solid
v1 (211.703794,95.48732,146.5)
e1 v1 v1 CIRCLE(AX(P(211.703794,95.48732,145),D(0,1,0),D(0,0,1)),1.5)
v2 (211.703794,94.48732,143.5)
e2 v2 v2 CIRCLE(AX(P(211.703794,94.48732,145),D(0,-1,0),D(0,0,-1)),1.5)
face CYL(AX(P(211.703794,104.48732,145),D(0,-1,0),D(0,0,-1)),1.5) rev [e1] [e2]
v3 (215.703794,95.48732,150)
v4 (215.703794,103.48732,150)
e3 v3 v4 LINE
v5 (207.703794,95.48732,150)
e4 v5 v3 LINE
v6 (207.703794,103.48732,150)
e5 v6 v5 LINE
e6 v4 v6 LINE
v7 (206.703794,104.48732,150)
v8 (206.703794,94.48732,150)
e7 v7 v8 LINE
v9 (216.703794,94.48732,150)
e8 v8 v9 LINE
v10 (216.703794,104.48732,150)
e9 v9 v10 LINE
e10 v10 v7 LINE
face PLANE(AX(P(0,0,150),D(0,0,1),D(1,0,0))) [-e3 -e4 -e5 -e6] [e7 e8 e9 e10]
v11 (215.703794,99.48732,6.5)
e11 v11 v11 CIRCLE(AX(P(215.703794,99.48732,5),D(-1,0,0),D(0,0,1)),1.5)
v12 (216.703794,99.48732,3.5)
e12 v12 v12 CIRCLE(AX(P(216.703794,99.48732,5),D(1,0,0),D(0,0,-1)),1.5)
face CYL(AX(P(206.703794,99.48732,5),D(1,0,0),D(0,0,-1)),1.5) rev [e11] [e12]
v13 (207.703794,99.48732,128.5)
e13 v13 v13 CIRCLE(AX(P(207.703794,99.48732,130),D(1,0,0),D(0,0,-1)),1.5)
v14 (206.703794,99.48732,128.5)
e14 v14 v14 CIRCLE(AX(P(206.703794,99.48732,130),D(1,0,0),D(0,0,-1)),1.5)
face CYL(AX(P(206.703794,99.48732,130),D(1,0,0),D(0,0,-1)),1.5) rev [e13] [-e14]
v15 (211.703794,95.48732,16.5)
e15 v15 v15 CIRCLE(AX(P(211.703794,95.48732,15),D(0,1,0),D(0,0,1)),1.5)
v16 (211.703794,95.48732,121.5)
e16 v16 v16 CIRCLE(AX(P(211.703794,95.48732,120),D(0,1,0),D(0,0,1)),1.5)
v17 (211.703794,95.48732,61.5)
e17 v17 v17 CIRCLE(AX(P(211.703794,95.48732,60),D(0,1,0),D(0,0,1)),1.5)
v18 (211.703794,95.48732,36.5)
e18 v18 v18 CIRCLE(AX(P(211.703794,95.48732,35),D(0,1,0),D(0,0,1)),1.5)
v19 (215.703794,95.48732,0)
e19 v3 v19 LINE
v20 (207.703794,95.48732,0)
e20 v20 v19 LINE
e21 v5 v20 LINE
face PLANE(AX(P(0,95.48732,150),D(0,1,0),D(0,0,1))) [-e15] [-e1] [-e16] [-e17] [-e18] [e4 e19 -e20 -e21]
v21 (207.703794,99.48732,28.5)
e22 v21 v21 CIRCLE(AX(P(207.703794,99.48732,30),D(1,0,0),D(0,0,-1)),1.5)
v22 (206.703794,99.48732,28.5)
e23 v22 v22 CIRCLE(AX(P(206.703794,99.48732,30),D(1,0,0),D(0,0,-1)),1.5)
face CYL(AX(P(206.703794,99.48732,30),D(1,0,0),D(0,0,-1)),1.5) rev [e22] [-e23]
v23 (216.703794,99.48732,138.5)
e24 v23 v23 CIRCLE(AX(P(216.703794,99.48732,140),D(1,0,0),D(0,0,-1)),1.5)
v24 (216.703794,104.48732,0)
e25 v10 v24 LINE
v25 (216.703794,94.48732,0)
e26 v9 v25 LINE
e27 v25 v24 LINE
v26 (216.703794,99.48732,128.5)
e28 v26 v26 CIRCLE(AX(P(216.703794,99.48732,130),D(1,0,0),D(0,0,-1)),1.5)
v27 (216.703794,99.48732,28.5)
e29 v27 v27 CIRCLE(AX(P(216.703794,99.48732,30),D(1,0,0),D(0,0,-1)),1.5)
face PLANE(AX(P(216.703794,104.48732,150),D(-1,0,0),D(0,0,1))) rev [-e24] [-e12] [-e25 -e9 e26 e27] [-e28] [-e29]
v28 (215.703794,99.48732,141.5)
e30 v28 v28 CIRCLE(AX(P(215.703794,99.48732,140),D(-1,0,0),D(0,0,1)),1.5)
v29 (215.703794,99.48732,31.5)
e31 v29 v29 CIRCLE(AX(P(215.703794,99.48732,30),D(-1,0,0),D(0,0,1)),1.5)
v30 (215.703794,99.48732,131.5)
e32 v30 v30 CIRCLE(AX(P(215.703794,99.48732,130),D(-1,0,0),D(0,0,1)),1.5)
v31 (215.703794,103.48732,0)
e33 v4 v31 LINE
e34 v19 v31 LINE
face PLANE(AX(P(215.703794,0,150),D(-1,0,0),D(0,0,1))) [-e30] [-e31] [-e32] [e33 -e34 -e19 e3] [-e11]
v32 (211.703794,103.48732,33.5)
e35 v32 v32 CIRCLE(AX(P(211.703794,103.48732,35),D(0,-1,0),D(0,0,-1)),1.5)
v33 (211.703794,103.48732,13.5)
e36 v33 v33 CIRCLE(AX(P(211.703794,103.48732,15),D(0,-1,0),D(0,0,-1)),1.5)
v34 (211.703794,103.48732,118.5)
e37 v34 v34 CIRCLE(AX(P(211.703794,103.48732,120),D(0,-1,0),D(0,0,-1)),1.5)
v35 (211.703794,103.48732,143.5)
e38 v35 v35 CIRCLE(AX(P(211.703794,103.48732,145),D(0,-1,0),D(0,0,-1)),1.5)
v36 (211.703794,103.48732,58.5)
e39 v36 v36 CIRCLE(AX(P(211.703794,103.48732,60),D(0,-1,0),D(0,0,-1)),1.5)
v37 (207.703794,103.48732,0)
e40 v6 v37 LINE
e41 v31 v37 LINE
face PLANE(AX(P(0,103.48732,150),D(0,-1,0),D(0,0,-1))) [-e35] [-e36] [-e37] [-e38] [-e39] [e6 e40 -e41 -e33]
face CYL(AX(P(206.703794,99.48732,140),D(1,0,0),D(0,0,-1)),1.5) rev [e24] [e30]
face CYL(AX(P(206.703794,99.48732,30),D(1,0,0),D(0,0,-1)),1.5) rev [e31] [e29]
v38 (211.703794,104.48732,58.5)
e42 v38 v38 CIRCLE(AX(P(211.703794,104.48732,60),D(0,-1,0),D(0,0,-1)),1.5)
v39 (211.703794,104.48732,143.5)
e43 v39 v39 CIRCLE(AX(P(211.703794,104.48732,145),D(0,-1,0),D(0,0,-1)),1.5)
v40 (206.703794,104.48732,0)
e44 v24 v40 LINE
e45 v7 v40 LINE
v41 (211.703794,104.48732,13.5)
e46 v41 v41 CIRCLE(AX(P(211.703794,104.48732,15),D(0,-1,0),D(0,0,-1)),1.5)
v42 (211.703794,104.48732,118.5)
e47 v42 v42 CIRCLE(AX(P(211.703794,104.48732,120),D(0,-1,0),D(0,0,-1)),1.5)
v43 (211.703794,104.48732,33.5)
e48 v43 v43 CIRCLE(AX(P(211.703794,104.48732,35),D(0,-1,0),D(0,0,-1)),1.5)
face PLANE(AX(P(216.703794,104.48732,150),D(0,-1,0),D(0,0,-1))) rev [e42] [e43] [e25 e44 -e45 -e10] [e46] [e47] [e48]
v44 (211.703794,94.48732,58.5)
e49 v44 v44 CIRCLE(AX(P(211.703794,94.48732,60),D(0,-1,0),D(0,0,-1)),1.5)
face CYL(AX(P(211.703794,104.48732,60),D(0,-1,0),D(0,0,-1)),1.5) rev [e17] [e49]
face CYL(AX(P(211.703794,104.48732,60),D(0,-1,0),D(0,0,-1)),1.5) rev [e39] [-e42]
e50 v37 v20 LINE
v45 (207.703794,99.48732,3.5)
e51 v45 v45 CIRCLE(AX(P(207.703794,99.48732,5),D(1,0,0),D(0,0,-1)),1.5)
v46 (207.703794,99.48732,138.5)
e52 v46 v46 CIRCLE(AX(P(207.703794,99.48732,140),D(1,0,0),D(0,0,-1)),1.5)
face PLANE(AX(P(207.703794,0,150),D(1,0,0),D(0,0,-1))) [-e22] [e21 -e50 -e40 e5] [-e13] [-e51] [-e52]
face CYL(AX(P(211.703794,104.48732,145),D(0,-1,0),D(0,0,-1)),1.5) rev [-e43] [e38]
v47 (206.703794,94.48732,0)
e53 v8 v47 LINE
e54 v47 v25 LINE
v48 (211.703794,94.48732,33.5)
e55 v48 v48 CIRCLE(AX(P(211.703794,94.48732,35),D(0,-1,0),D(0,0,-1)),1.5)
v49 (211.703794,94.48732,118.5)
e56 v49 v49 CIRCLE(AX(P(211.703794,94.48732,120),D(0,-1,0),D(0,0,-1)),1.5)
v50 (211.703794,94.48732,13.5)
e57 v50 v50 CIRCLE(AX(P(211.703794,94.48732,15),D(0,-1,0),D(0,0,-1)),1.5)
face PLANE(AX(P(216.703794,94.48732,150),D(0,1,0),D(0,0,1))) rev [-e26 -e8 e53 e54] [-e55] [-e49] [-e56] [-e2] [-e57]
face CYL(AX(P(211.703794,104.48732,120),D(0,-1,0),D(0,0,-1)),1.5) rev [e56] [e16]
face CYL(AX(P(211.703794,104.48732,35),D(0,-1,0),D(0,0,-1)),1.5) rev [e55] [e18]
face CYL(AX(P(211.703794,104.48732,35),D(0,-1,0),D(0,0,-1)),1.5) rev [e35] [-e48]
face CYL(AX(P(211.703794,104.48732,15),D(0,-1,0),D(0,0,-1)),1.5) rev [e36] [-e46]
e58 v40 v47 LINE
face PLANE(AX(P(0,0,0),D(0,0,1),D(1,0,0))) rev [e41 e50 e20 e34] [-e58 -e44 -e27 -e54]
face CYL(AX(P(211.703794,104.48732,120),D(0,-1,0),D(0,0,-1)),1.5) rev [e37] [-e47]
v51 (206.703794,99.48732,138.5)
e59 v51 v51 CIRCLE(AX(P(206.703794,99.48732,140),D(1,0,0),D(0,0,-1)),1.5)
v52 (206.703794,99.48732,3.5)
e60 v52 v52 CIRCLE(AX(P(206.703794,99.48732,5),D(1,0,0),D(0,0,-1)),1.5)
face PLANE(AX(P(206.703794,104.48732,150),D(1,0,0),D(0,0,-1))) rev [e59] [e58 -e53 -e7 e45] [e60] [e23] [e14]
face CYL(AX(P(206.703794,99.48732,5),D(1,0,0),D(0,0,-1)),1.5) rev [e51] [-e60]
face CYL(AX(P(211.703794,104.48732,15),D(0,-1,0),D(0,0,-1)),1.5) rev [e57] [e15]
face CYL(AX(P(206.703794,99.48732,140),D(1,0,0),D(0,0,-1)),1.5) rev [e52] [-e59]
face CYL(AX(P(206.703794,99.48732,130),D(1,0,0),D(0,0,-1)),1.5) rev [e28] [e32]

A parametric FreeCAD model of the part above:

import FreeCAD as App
import Part
import Sketcher
Q = App.Units.Quantity


def add_polygon(sketch, points):
    """Adds a closed chain of lines whose ends are joined by coincident constraints."""
    first, n = sketch.GeometryCount, len(points)
    for a, b in zip(points, points[1:] + points[:1]):
        sketch.addGeometry(Part.LineSegment(App.Vector(*a, 0), App.Vector(*b, 0)), False)
    for i in range(n):
        sketch.addConstraint(Sketcher.Constraint("Coincident", first + i, 2, first + (i + 1) % n, 1))

doc = App.newDocument("Part")
params = doc.addObject("Spreadsheet::Sheet", "Params")
for row, (alias, value) in enumerate([
    ("sketch1_width", "10 mm"),
    ("sketch1_width2", "8 mm"),
    ("pad1_length", "150 mm"),
    ("sketch2_diameter", "3 mm"),
    ("sketch3_diameter", "3 mm"),
], start=1):
    params.set(f"A{row}", alias)
    params.set(f"B{row}", "=" + value)
    params.setAlias(f"B{row}", alias)

body = doc.addObject("PartDesign::Body", "Body")

# Sketch on XY plane
sketch1 = body.newObject("Sketcher::SketchObject", "Sketch")
sketch1.AttachmentSupport = (doc.getObject("XY_Plane"), [""])
sketch1.MapMode = "FlatFace"
add_polygon(sketch1, [(207, 104), (207, 94), (217, 94), (217, 104)])  # lines 0-3
add_polygon(sketch1, [(216, 95), (208, 95), (208, 103), (216, 103)])  # lines 4-7
sketch1.addConstraint([
    Sketcher.Constraint("Vertical", 0),
    Sketcher.Constraint("Horizontal", 1),
    Sketcher.Constraint("Vertical", 2),
    Sketcher.Constraint("Horizontal", 3),
    Sketcher.Constraint("Horizontal", 4),
    Sketcher.Constraint("Vertical", 5),
    Sketcher.Constraint("Horizontal", 6),
    Sketcher.Constraint("Vertical", 7),
    Sketcher.Constraint("Equal", 3, 0),
    Sketcher.Constraint("Equal", 6, 5),
    Sketcher.Constraint("DistanceX", 1, 1, 1, 2, Q("10 mm")),
    Sketcher.Constraint("DistanceX", 4, 2, 4, 1, Q("8 mm")),
    Sketcher.Constraint("DistanceX", 0, 2, 4, 2, Q("1 mm")),
    Sketcher.Constraint("DistanceY", 0, 2, 4, 2, Q("1 mm")),
    Sketcher.Constraint("DistanceY", -1, 1, 0, 2, Q("94.48732 mm")),
    Sketcher.Constraint("DistanceX", -1, 1, 0, 2, Q("206.703794 mm")),
])
sketch1.setExpression("Constraints[18]", "Params.sketch1_width")
sketch1.setExpression("Constraints[19]", "Params.sketch1_width2")
pad1 = body.newObject("PartDesign::Pad", "Pad")
pad1.Profile = sketch1
pad1.setExpression("Length", "Params.pad1_length")

# Sketch on YZ plane
sketch2 = body.newObject("Sketcher::SketchObject", "Sketch001")
sketch2.AttachmentSupport = (doc.getObject("YZ_Plane"), [""])
sketch2.MapMode = "FlatFace"
sketch2.AttachmentOffset = App.Placement(App.Vector(0, 0, 216.703794), App.Rotation())
sketch2.addGeometry([
    Part.Circle(App.Vector(99.5, 30, 0), App.Vector(0, 0, 1), 1.5),
    Part.Circle(App.Vector(99.5, 5, 0), App.Vector(0, 0, 1), 1.5),
    Part.Circle(App.Vector(99.5, 130, 0), App.Vector(0, 0, 1), 1.5),
    Part.Circle(App.Vector(99.5, 140, 0), App.Vector(0, 0, 1), 1.5),
], False)
sketch2.addConstraint([
    Sketcher.Constraint("Equal", 0, 1),
    Sketcher.Constraint("Equal", 1, 2),
    Sketcher.Constraint("Equal", 2, 3),
    Sketcher.Constraint("Vertical", 0, 3, 1, 3),
    Sketcher.Constraint("Vertical", 1, 3, 2, 3),
    Sketcher.Constraint("Vertical", 2, 3, 3, 3),
    Sketcher.Constraint("Diameter", 0, Q("3 mm")),
    Sketcher.Constraint("DistanceY", -1, 1, 0, 3, Q("30 mm")),
    Sketcher.Constraint("DistanceY", -1, 1, 1, 3, Q("5 mm")),
    Sketcher.Constraint("DistanceY", -1, 1, 2, 3, Q("130 mm")),
    Sketcher.Constraint("DistanceY", -1, 1, 3, 3, Q("140 mm")),
    Sketcher.Constraint("DistanceX", -1, 1, 0, 3, Q("99.48732 mm")),
])
sketch2.setExpression("Constraints[6]", "Params.sketch2_diameter")
pocket1 = body.newObject("PartDesign::Pocket", "Pocket")
pocket1.Profile = sketch2
pocket1.Type = "ThroughAll"

# Sketch on XZ plane
sketch3 = body.newObject("Sketcher::SketchObject", "Sketch002")
sketch3.AttachmentSupport = (doc.getObject("XZ_Plane"), [""])
sketch3.MapMode = "FlatFace"
sketch3.AttachmentOffset = App.Placement(App.Vector(0, 0, -94.48732), App.Rotation())
sketch3.addGeometry([
    Part.Circle(App.Vector(211.7, 120, 0), App.Vector(0, 0, 1), 1.5),  # 0
    Part.Circle(App.Vector(211.7, 35, 0), App.Vector(0, 0, 1), 1.5),  # 1
    Part.Circle(App.Vector(211.7, 145, 0), App.Vector(0, 0, 1), 1.5),  # 2
    Part.Circle(App.Vector(211.7, 60, 0), App.Vector(0, 0, 1), 1.5),  # 3
    Part.Circle(App.Vector(211.7, 15, 0), App.Vector(0, 0, 1), 1.5),  # 4
], False)
sketch3.addConstraint([
    Sketcher.Constraint("Equal", 0, 1),
    Sketcher.Constraint("Equal", 1, 2),
    Sketcher.Constraint("Equal", 2, 3),
    Sketcher.Constraint("Equal", 3, 4),
    Sketcher.Constraint("Vertical", 0, 3, 1, 3),
    Sketcher.Constraint("Vertical", 1, 3, 2, 3),
    Sketcher.Constraint("Vertical", 2, 3, 3, 3),
    Sketcher.Constraint("Vertical", 3, 3, 4, 3),
    Sketcher.Constraint("Diameter", 0, Q("3 mm")),
    Sketcher.Constraint("DistanceY", -1, 1, 0, 3, Q("120 mm")),
    Sketcher.Constraint("DistanceY", -1, 1, 1, 3, Q("35 mm")),
    Sketcher.Constraint("DistanceY", -1, 1, 2, 3, Q("145 mm")),
    Sketcher.Constraint("DistanceY", -1, 1, 3, 3, Q("60 mm")),
    Sketcher.Constraint("DistanceY", -1, 1, 4, 3, Q("15 mm")),
    Sketcher.Constraint("DistanceX", -1, 1, 0, 3, Q("211.703794 mm")),
])
sketch3.setExpression("Constraints[8]", "Params.sketch3_diameter")
pocket2 = body.newObject("PartDesign::Pocket", "Pocket001")
pocket2.Profile = sketch3
pocket2.Type = "ThroughAll"

doc.recompute()
